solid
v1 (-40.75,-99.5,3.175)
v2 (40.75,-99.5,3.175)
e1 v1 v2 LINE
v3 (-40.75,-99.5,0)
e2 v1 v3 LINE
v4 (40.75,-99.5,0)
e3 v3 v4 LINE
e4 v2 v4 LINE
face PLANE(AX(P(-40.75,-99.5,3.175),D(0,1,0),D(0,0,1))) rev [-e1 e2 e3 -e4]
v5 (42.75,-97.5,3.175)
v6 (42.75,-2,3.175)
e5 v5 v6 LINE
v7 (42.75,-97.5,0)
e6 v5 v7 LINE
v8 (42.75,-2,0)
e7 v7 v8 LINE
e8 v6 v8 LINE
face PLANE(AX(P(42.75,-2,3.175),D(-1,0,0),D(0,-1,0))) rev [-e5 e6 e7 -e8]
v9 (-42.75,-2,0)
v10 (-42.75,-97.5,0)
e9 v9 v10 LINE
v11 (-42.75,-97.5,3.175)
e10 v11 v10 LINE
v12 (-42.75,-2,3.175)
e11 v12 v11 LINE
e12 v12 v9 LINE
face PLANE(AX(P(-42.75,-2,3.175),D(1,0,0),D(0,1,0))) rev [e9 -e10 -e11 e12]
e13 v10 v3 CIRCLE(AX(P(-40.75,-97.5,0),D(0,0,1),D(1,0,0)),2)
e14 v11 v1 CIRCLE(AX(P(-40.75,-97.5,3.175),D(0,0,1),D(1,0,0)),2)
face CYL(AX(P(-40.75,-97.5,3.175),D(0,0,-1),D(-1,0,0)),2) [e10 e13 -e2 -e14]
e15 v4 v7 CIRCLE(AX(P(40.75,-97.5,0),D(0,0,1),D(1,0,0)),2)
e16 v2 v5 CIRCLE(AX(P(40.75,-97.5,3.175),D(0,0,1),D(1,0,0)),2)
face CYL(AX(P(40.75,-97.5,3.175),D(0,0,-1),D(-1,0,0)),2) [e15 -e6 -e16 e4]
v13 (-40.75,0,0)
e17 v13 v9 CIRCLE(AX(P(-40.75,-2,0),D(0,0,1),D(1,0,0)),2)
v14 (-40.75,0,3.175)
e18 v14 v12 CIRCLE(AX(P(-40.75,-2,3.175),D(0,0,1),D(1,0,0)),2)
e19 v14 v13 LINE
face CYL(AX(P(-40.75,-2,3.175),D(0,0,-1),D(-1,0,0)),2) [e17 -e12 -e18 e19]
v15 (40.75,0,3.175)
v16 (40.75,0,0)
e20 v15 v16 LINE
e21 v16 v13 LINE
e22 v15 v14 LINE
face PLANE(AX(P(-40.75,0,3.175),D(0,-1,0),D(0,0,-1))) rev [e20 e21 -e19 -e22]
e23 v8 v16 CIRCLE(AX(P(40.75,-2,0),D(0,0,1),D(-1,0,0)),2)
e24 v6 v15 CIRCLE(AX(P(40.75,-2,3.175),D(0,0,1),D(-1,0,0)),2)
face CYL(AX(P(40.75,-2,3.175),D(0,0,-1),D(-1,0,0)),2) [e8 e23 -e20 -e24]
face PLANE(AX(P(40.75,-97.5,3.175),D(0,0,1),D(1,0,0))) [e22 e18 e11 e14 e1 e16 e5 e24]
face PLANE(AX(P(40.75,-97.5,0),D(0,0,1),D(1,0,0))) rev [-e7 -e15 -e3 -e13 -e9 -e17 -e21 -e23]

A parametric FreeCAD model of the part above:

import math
import FreeCAD as App
import Part
import Sketcher
from FreeCAD import Vector

doc = App.newDocument("Part")
body = doc.addObject("PartDesign::Body", "Body")

# Sketch on XY plane
sketch1 = doc.addObject("Sketcher::SketchObject", "Sketch")
body.addObject(sketch1)
sketch1.AttachmentSupport = (doc.XY_Plane, [""])
sketch1.MapMode = "FlatFace"
sketch1.addGeometry([
    Part.LineSegment(Vector(40.8, 0, 0), Vector(-40.8, 0, 0)),  # 0
    Part.ArcOfCircle(Part.Circle(Vector(-40.7, -2, 0), Vector(0, 0, 1), 2), math.radians(90), math.radians(180)),  # 1
    Part.LineSegment(Vector(-42.8, -2, 0), Vector(-42.8, -97.5, 0)),  # 2
    Part.ArcOfCircle(Part.Circle(Vector(-40.7, -97.5, 0), Vector(0, 0, 1), 2), math.radians(-180), math.radians(-90)),  # 3
    Part.LineSegment(Vector(-40.8, -99.5, 0), Vector(40.8, -99.5, 0)),  # 4
    Part.ArcOfCircle(Part.Circle(Vector(40.7, -97.5, 0), Vector(0, 0, 1), 2), math.radians(-90), math.radians(0)),  # 5
    Part.LineSegment(Vector(42.8, -97.5, 0), Vector(42.8, -2, 0)),  # 6
    Part.ArcOfCircle(Part.Circle(Vector(40.7, -2, 0), Vector(0, 0, 1), 2), math.radians(0), math.radians(90)),  # 7
], False)
sketch1.addConstraint([
    Sketcher.Constraint("Tangent", 0, 2, 1, 1),
    Sketcher.Constraint("Tangent", 1, 2, 2, 1),
    Sketcher.Constraint("Tangent", 2, 2, 3, 1),
    Sketcher.Constraint("Tangent", 3, 2, 4, 1),
    Sketcher.Constraint("Tangent", 4, 2, 5, 1),
    Sketcher.Constraint("Tangent", 5, 2, 6, 1),
    Sketcher.Constraint("Tangent", 6, 2, 7, 1),
    Sketcher.Constraint("Tangent", 7, 2, 0, 1),
    Sketcher.Constraint("Horizontal", 0),
    Sketcher.Constraint("Vertical", 2),
    Sketcher.Constraint("Horizontal", 4),
    Sketcher.Constraint("Vertical", 6),
    Sketcher.Constraint("Equal", 1, 3),
    Sketcher.Constraint("Equal", 3, 5),
    Sketcher.Constraint("Equal", 5, 7),
    Sketcher.Constraint("Symmetric", 0, 2, 7, 2, -1, 1),
    Sketcher.Constraint("Radius", 1, 2.0),
    Sketcher.Constraint("DistanceX", 0, 2, 0, 1, 81.5),
    Sketcher.Constraint("DistanceY", 2, 2, 2, 1, 95.5),
])
pad1 = doc.addObject("PartDesign::Pad", "Pad")
body.addObject(pad1)
pad1.Profile = sketch1
pad1.Length = 3.175

doc.recompute()
